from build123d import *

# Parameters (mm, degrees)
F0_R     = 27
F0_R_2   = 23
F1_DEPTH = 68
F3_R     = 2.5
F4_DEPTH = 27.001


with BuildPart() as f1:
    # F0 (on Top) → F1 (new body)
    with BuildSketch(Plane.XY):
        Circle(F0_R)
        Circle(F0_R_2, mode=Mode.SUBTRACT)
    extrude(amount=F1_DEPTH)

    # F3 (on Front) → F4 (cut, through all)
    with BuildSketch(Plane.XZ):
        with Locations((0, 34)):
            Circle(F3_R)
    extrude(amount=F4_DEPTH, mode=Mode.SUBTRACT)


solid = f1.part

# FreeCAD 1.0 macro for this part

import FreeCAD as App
import Part
import Sketcher
from FreeCAD import Vector

doc = App.newDocument("Part")
params = doc.addObject("Spreadsheet::Sheet", "Params")
for row, (alias, value) in enumerate([
    ("sketch1_diameter", "54 mm"),
    ("sketch1_diameter2", "46 mm"),
    ("pad1_length", "68 mm"),
    ("sketch2_diameter", "5 mm"),
], start=1):
    params.set(f"A{row}", alias)
    params.set(f"B{row}", "=" + value)
    params.setAlias(f"B{row}", alias)

body = doc.addObject("PartDesign::Body", "Body")

# Sketch on XY plane
sketch1 = body.newObject("Sketcher::SketchObject", "Sketch")
sketch1.AttachmentSupport = (doc.getObject("XY_Plane"), [""])
sketch1.MapMode = "FlatFace"
sketch1.addGeometry(Part.Circle(Vector(0, 0, 0), Vector(0, 0, 1), 27), False)
sketch1.addGeometry(Part.Circle(Vector(0, 0, 0), Vector(0, 0, 1), 23), False)
sketch1.addConstraint(Sketcher.Constraint("Coincident", 0, 3, -1, 1))
sketch1.addConstraint(Sketcher.Constraint("Coincident", 1, 3, -1, 1))
sketch1.addConstraint(Sketcher.Constraint("Diameter", 0, 54.0))
sketch1.addConstraint(Sketcher.Constraint("Diameter", 1, 46.0))
sketch1.setExpression("Constraints[2]", "Params.sketch1_diameter")
sketch1.setExpression("Constraints[3]", "Params.sketch1_diameter2")
pad1 = body.newObject("PartDesign::Pad", "Pad")
pad1.Profile = sketch1
pad1.setExpression("Length", "Params.pad1_length")

# Sketch on XZ plane
sketch2 = body.newObject("Sketcher::SketchObject", "Sketch001")
sketch2.AttachmentSupport = (doc.getObject("XZ_Plane"), [""])
sketch2.MapMode = "FlatFace"
sketch2.addGeometry(Part.Circle(Vector(0, 34, 0), Vector(0, 0, 1), 2.5), False)
sketch2.addConstraint(Sketcher.Constraint("PointOnObject", 0, 3, -2))
sketch2.addConstraint(Sketcher.Constraint("Diameter", 0, 5.0))
sketch2.addConstraint(Sketcher.Constraint("DistanceY", -1, 1, 0, 3, 34.0))
sketch2.setExpression("Constraints[1]", "Params.sketch2_diameter")
pocket1 = body.newObject("PartDesign::Pocket", "Pocket")
pocket1.Profile = sketch2
pocket1.Type = "ThroughAll"
pocket1.Reversed = True

doc.recompute()
